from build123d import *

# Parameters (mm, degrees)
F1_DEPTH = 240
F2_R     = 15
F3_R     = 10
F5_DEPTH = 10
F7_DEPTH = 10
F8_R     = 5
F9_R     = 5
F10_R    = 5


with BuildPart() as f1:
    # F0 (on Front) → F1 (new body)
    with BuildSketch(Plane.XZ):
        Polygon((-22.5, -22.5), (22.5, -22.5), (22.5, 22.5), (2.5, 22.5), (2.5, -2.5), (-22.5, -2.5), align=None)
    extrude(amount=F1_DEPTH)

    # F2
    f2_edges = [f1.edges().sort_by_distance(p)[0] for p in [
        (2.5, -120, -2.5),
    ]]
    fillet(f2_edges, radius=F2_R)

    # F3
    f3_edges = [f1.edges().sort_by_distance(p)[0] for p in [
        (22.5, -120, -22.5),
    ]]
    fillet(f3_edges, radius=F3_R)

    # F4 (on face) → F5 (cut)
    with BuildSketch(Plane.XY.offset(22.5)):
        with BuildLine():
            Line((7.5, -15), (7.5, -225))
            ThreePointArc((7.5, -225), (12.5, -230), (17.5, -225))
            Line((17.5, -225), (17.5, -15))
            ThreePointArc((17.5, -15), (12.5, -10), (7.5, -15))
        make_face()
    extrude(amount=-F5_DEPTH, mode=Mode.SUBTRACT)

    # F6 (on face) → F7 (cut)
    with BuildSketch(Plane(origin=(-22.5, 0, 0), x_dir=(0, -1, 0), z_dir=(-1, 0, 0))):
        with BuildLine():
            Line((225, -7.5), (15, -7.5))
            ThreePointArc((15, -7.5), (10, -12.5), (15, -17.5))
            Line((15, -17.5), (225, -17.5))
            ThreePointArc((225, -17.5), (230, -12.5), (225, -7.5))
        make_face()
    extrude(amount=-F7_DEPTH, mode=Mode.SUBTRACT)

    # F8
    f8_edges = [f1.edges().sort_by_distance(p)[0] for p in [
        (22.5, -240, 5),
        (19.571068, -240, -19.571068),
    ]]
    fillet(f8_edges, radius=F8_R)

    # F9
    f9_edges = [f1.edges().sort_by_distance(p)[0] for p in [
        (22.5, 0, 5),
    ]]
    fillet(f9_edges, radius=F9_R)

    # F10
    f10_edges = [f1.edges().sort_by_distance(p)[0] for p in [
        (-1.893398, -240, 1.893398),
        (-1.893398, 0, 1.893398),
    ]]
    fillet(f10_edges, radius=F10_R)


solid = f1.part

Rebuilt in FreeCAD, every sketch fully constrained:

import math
import FreeCAD as App
import Part
import Sketcher

V = App.Vector
Q = App.Units.Quantity


def edges_at(feature, points):
    """Names of the edges that pass closest to the given points."""
    edges = feature.Shape.Edges
    near = lambda p: min(range(len(edges)), key=lambda i: edges[i].distToShape(Part.Vertex(*p))[0])
    return sorted({f"Edge{near(p) + 1}" for p in points})


def add_polygon(sketch, points):
    """Adds a closed chain of lines whose ends are joined by coincident constraints."""
    first, n = sketch.GeometryCount, len(points)
    for a, b in zip(points, points[1:] + points[:1]):
        sketch.addGeometry(Part.LineSegment(App.Vector(*a, 0), App.Vector(*b, 0)), False)
    for i in range(n):
        sketch.addConstraint(Sketcher.Constraint("Coincident", first + i, 2, first + (i + 1) % n, 1))

doc = App.newDocument("Part")
body = doc.addObject("PartDesign::Body", "Body")

sketch1 = body.newObject("Sketcher::SketchObject", "Sketch")
sketch1.AttachmentSupport = (doc.getObject("XZ_Plane"), [""])
sketch1.MapMode = "FlatFace"
add_polygon(sketch1, [(-22, -22), (22, -22), (22, 22), (2, 22), (2, -2), (-22, -2)])
sketch1.addConstraint([
    Sketcher.Constraint("Horizontal", 0),
    Sketcher.Constraint("Vertical", 1),
    Sketcher.Constraint("Horizontal", 2),
    Sketcher.Constraint("Vertical", 3),
    Sketcher.Constraint("Horizontal", 4),
    Sketcher.Constraint("Vertical", 5),
    Sketcher.Constraint("Symmetric", 1, 2, 5, 2, -1, 1),
    Sketcher.Constraint("Equal", 0, 1),
    Sketcher.Constraint("Equal", 4, 3),
    Sketcher.Constraint("DistanceX", 0, 1, 0, 2, Q("45 mm")),
    Sketcher.Constraint("DistanceX", 2, 2, 2, 1, Q("20 mm")),
])
pad1 = body.newObject("PartDesign::Pad", "Pad")
pad1.Profile = sketch1
pad1.Length = 240
doc.recompute()

fillet = body.newObject("PartDesign::Fillet", "Fillet")
fillet.Base = (pad1, edges_at(pad1, [(2.5, -120, -2.5)]))
fillet.Radius = 15
doc.recompute()

fillet2 = body.newObject("PartDesign::Fillet", "Fillet001")
fillet2.Base = (fillet, edges_at(fillet, [(22.5, -120, -22.5)]))
fillet2.Radius = 10

sketch2 = body.newObject("Sketcher::SketchObject", "Sketch001")
sketch2.AttachmentSupport = (doc.getObject("XY_Plane"), [""])
sketch2.MapMode = "FlatFace"
sketch2.AttachmentOffset = App.Placement(V(0, 0, 22.5), App.Rotation())
sketch2.addGeometry([
    Part.LineSegment(V(8, -15, 0), V(8, -225, 0)),
    Part.ArcOfCircle(Part.Circle(V(12, -225, 0), V(0, 0, 1), 5), math.radians(180), math.radians(360)),
    Part.LineSegment(V(18, -225, 0), V(18, -15, 0)),
    Part.ArcOfCircle(Part.Circle(V(12, -15, 0), V(0, 0, 1), 5), math.radians(0), math.radians(180)),
], False)
sketch2.addConstraint([
    Sketcher.Constraint("Tangent", 0, 2, 1, 1),
    Sketcher.Constraint("Tangent", 1, 2, 2, 1),
    Sketcher.Constraint("Tangent", 2, 2, 3, 1),
    Sketcher.Constraint("Tangent", 3, 2, 0, 1),
    Sketcher.Constraint("Vertical", 0),
    Sketcher.Constraint("Vertical", 2),
    Sketcher.Constraint("Radius", 1, Q("5 mm")),
    Sketcher.Constraint("DistanceY", 0, 2, 0, 1, Q("210 mm")),
    Sketcher.Constraint("DistanceY", 1, 3, -1, 1, Q("225 mm")),
    Sketcher.Constraint("DistanceX", -1, 1, 1, 3, Q("12.5 mm")),
])
pocket1 = body.newObject("PartDesign::Pocket", "Pocket")
pocket1.Profile = sketch2
pocket1.Length = 10

sketch3 = body.newObject("Sketcher::SketchObject", "Sketch002")
sketch3.AttachmentSupport = (doc.getObject("YZ_Plane"), [""])
sketch3.MapMode = "FlatFace"
sketch3.AttachmentOffset = App.Placement(V(0, 0, -22.5), App.Rotation())
sketch3.addGeometry([
    Part.LineSegment(V(-225, -8, 0), V(-15, -8, 0)),
    Part.ArcOfCircle(Part.Circle(V(-15, -12, 0), V(0, 0, 1), 5), math.radians(-90), math.radians(90)),
    Part.LineSegment(V(-15, -18, 0), V(-225, -18, 0)),
    Part.ArcOfCircle(Part.Circle(V(-225, -12, 0), V(0, 0, 1), 5), math.radians(90), math.radians(270)),
], False)
sketch3.addConstraint([
    Sketcher.Constraint("Tangent", 0, 2, 1, 2),
    Sketcher.Constraint("Tangent", 1, 1, 2, 1),
    Sketcher.Constraint("Tangent", 2, 2, 3, 2),
    Sketcher.Constraint("Tangent", 3, 1, 0, 1),
    Sketcher.Constraint("Horizontal", 0),
    Sketcher.Constraint("Horizontal", 2),
    Sketcher.Constraint("Radius", 1, Q("5 mm")),
    Sketcher.Constraint("DistanceX", 0, 1, 0, 2, Q("210 mm")),
    Sketcher.Constraint("DistanceX", 1, 3, -1, 1, Q("15 mm")),
    Sketcher.Constraint("DistanceY", 1, 3, -1, 1, Q("12.5 mm")),
])
pocket2 = body.newObject("PartDesign::Pocket", "Pocket001")
pocket2.Profile = sketch3
pocket2.Length = 10
pocket2.Reversed = True
doc.recompute()

fillet3 = body.newObject("PartDesign::Fillet", "Fillet002")
fillet3.Base = (pocket2, edges_at(pocket2, [(22.5, -240, 5), (19.571, -240, -19.571)]))
fillet3.Radius = 5
doc.recompute()

fillet4 = body.newObject("PartDesign::Fillet", "Fillet003")
fillet4.Base = (fillet3, edges_at(fillet3, [(22.5, 0, 5)]))
fillet4.Radius = 5
doc.recompute()

fillet5 = body.newObject("PartDesign::Fillet", "Fillet004")
fillet5.Base = (fillet4, edges_at(fillet4, [(-1.893, -240, 1.893), (-1.893, 0, 1.893)]))
fillet5.Radius = 5

doc.recompute()
